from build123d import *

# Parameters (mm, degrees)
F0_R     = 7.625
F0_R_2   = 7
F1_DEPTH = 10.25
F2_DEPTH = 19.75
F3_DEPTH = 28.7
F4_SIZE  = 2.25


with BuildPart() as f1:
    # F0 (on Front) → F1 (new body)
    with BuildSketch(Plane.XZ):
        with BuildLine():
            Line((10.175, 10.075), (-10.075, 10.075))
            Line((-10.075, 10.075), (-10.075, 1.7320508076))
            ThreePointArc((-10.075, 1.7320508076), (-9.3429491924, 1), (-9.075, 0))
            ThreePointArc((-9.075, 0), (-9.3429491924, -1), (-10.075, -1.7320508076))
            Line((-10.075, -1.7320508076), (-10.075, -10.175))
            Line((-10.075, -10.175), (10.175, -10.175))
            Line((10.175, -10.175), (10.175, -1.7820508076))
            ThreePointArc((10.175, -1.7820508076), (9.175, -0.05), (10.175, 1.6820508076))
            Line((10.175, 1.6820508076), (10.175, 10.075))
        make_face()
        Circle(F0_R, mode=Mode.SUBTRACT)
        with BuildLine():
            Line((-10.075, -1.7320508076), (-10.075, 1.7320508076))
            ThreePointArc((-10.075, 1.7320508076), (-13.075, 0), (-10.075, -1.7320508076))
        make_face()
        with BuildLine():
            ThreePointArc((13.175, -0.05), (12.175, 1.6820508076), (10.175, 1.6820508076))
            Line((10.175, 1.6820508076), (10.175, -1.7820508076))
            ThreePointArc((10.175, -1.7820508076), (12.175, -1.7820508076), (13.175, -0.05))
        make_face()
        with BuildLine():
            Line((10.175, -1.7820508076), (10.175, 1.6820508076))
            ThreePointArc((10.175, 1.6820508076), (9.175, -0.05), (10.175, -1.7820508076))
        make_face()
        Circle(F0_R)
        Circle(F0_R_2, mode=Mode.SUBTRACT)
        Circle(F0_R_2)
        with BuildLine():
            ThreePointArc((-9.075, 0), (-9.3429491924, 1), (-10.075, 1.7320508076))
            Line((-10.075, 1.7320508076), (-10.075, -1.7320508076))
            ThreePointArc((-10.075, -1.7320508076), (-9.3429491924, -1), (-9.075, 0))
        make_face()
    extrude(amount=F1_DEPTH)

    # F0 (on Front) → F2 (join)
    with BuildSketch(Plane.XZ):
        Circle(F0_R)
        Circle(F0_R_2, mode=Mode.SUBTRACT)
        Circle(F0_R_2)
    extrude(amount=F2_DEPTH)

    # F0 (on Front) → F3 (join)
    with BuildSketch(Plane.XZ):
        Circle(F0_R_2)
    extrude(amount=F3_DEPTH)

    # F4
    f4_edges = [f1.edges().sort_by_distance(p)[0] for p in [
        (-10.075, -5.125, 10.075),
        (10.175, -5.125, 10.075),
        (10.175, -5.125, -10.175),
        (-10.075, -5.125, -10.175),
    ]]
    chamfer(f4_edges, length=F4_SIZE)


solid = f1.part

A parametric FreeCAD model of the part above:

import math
import FreeCAD as App
import Part
import Sketcher
Q = App.Units.Quantity


def edges_at(feature, points):
    """Names of the edges that pass closest to the given points."""
    edges = feature.Shape.Edges
    near = lambda p: min(range(len(edges)), key=lambda i: edges[i].distToShape(Part.Vertex(*p))[0])
    return sorted({f"Edge{near(p) + 1}" for p in points})

doc = App.newDocument("Part")
params = doc.addObject("Spreadsheet::Sheet", "Params")
for row, (alias, value) in enumerate([
    ("sketch1_radius", "2 mm"),
    ("sketch1_width", "20.25 mm"),
    ("pad1_length", "10.25 mm"),
    ("sketch2_diameter", "15.25 mm"),
    ("pad2_length", "19.75 mm"),
    ("sketch3_diameter", "14 mm"),
    ("pad3_length", "28.7 mm"),
    ("chamfer_size", "2.25 mm"),
], start=1):
    params.set(f"A{row}", alias)
    params.set(f"B{row}", "=" + value)
    params.setAlias(f"B{row}", alias)

body = doc.addObject("PartDesign::Body", "Body")

# Sketch on XZ plane
sketch1 = body.newObject("Sketcher::SketchObject", "Sketch")
sketch1.AttachmentSupport = (doc.getObject("XZ_Plane"), [""])
sketch1.MapMode = "FlatFace"
sketch1.addGeometry([
    Part.LineSegment(App.Vector(10.2, 10.1, 0), App.Vector(-10.1, 10.1, 0)),  # 0
    Part.LineSegment(App.Vector(-10.1, 10.1, 0), App.Vector(-10.1, 1.7, 0)),  # 1
    Part.ArcOfCircle(Part.Circle(App.Vector(-11.1, 0, 0), App.Vector(0, 0, 1), 2), math.radians(60), math.radians(300)),  # 2
    Part.LineSegment(App.Vector(-10.1, -1.7, 0), App.Vector(-10.1, -10.2, 0)),  # 3
    Part.LineSegment(App.Vector(-10.1, -10.2, 0), App.Vector(10.2, -10.2, 0)),  # 4
    Part.LineSegment(App.Vector(10.2, -10.2, 0), App.Vector(10.2, -1.8, 0)),  # 5
    Part.ArcOfCircle(Part.Circle(App.Vector(11.2, -0.1, 0), App.Vector(0, 0, 1), 2), math.radians(-120), math.radians(0)),  # 6
    Part.ArcOfCircle(Part.Circle(App.Vector(11.2, -0.1, 0), App.Vector(0, 0, 1), 2), math.radians(0), math.radians(120)),  # 7
    Part.LineSegment(App.Vector(10.2, 1.7, 0), App.Vector(10.2, 10.1, 0)),  # 8
], False)
sketch1.addConstraint([
    Sketcher.Constraint("Coincident", 0, 2, 1, 1),
    Sketcher.Constraint("Coincident", 1, 2, 2, 1),
    Sketcher.Constraint("Coincident", 2, 2, 3, 1),
    Sketcher.Constraint("Coincident", 3, 2, 4, 1),
    Sketcher.Constraint("Coincident", 4, 2, 5, 1),
    Sketcher.Constraint("Coincident", 5, 2, 6, 1),
    Sketcher.Constraint("Tangent", 6, 2, 7, 1),
    Sketcher.Constraint("Coincident", 7, 2, 8, 1),
    Sketcher.Constraint("Coincident", 8, 2, 0, 1),
    Sketcher.Constraint("Horizontal", 0),
    Sketcher.Constraint("Vertical", 1),
    Sketcher.Constraint("Vertical", 3),
    Sketcher.Constraint("Horizontal", 4),
    Sketcher.Constraint("Vertical", 5),
    Sketcher.Constraint("Vertical", 8),
    Sketcher.Constraint("Equal", 2, 6),
    Sketcher.Constraint("Equal", 6, 7),
    Sketcher.Constraint("Symmetric", 1, 2, 2, 2, -1),
    Sketcher.Constraint("Horizontal", 7, 3, 6, 2),
    Sketcher.Constraint("Vertical", 5, 2, 7, 2),
    Sketcher.Constraint("Equal", 5, 8),
    Sketcher.Constraint("Radius", 2, Q("2 mm")),
    Sketcher.Constraint("DistanceX", 2, 3, 0, 2, Q("1 mm")),
    Sketcher.Constraint("DistanceX", 4, 2, 6, 3, Q("1 mm")),
    Sketcher.Constraint("DistanceX", 0, 2, 0, 1, Q("20.25 mm")),
    Sketcher.Constraint("DistanceY", 6, 3, -1, 1, Q("0.05 mm")),
    Sketcher.Constraint("DistanceY", 3, 2, 0, 2, Q("20.25 mm")),
    Sketcher.Constraint("DistanceX", 2, 3, -1, 1, Q("11.075 mm")),
])
sketch1.setExpression("Constraints[21]", "Params.sketch1_radius")
sketch1.setExpression("Constraints[24]", "Params.sketch1_width")
pad1 = body.newObject("PartDesign::Pad", "Pad")
pad1.Profile = sketch1
pad1.setExpression("Length", "Params.pad1_length")

# Sketch on XZ plane
sketch2 = body.newObject("Sketcher::SketchObject", "Sketch001")
sketch2.AttachmentSupport = (doc.getObject("XZ_Plane"), [""])
sketch2.MapMode = "FlatFace"
sketch2.addGeometry(Part.Circle(App.Vector(0, 0, 0), App.Vector(0, 0, 1), 8), False)
sketch2.addConstraint([
    Sketcher.Constraint("Coincident", 0, 3, -1, 1),
    Sketcher.Constraint("Diameter", 0, Q("15.25 mm")),
])
sketch2.setExpression("Constraints[1]", "Params.sketch2_diameter")
pad2 = body.newObject("PartDesign::Pad", "Pad001")
pad2.Profile = sketch2
pad2.setExpression("Length", "Params.pad2_length")

# Sketch on XZ plane
sketch3 = body.newObject("Sketcher::SketchObject", "Sketch002")
sketch3.AttachmentSupport = (doc.getObject("XZ_Plane"), [""])
sketch3.MapMode = "FlatFace"
sketch3.addGeometry(Part.Circle(App.Vector(0, 0, 0), App.Vector(0, 0, 1), 7), False)
sketch3.addConstraint([
    Sketcher.Constraint("Coincident", 0, 3, -1, 1),
    Sketcher.Constraint("Diameter", 0, Q("14 mm")),
])
sketch3.setExpression("Constraints[1]", "Params.sketch3_diameter")
pad3 = body.newObject("PartDesign::Pad", "Pad002")
pad3.Profile = sketch3
pad3.setExpression("Length", "Params.pad3_length")
doc.recompute()

chamfer = body.newObject("PartDesign::Chamfer", "Chamfer")
chamfer.Base = (pad3, edges_at(pad3, [
    (-10.075, -5.125, 10.075),
    (10.175, -5.125, 10.075),
    (10.175, -5.125, -10.175),
    (-10.075, -5.125, -10.175),
]))
chamfer.setExpression("Size", "Params.chamfer_size")

doc.recompute()
